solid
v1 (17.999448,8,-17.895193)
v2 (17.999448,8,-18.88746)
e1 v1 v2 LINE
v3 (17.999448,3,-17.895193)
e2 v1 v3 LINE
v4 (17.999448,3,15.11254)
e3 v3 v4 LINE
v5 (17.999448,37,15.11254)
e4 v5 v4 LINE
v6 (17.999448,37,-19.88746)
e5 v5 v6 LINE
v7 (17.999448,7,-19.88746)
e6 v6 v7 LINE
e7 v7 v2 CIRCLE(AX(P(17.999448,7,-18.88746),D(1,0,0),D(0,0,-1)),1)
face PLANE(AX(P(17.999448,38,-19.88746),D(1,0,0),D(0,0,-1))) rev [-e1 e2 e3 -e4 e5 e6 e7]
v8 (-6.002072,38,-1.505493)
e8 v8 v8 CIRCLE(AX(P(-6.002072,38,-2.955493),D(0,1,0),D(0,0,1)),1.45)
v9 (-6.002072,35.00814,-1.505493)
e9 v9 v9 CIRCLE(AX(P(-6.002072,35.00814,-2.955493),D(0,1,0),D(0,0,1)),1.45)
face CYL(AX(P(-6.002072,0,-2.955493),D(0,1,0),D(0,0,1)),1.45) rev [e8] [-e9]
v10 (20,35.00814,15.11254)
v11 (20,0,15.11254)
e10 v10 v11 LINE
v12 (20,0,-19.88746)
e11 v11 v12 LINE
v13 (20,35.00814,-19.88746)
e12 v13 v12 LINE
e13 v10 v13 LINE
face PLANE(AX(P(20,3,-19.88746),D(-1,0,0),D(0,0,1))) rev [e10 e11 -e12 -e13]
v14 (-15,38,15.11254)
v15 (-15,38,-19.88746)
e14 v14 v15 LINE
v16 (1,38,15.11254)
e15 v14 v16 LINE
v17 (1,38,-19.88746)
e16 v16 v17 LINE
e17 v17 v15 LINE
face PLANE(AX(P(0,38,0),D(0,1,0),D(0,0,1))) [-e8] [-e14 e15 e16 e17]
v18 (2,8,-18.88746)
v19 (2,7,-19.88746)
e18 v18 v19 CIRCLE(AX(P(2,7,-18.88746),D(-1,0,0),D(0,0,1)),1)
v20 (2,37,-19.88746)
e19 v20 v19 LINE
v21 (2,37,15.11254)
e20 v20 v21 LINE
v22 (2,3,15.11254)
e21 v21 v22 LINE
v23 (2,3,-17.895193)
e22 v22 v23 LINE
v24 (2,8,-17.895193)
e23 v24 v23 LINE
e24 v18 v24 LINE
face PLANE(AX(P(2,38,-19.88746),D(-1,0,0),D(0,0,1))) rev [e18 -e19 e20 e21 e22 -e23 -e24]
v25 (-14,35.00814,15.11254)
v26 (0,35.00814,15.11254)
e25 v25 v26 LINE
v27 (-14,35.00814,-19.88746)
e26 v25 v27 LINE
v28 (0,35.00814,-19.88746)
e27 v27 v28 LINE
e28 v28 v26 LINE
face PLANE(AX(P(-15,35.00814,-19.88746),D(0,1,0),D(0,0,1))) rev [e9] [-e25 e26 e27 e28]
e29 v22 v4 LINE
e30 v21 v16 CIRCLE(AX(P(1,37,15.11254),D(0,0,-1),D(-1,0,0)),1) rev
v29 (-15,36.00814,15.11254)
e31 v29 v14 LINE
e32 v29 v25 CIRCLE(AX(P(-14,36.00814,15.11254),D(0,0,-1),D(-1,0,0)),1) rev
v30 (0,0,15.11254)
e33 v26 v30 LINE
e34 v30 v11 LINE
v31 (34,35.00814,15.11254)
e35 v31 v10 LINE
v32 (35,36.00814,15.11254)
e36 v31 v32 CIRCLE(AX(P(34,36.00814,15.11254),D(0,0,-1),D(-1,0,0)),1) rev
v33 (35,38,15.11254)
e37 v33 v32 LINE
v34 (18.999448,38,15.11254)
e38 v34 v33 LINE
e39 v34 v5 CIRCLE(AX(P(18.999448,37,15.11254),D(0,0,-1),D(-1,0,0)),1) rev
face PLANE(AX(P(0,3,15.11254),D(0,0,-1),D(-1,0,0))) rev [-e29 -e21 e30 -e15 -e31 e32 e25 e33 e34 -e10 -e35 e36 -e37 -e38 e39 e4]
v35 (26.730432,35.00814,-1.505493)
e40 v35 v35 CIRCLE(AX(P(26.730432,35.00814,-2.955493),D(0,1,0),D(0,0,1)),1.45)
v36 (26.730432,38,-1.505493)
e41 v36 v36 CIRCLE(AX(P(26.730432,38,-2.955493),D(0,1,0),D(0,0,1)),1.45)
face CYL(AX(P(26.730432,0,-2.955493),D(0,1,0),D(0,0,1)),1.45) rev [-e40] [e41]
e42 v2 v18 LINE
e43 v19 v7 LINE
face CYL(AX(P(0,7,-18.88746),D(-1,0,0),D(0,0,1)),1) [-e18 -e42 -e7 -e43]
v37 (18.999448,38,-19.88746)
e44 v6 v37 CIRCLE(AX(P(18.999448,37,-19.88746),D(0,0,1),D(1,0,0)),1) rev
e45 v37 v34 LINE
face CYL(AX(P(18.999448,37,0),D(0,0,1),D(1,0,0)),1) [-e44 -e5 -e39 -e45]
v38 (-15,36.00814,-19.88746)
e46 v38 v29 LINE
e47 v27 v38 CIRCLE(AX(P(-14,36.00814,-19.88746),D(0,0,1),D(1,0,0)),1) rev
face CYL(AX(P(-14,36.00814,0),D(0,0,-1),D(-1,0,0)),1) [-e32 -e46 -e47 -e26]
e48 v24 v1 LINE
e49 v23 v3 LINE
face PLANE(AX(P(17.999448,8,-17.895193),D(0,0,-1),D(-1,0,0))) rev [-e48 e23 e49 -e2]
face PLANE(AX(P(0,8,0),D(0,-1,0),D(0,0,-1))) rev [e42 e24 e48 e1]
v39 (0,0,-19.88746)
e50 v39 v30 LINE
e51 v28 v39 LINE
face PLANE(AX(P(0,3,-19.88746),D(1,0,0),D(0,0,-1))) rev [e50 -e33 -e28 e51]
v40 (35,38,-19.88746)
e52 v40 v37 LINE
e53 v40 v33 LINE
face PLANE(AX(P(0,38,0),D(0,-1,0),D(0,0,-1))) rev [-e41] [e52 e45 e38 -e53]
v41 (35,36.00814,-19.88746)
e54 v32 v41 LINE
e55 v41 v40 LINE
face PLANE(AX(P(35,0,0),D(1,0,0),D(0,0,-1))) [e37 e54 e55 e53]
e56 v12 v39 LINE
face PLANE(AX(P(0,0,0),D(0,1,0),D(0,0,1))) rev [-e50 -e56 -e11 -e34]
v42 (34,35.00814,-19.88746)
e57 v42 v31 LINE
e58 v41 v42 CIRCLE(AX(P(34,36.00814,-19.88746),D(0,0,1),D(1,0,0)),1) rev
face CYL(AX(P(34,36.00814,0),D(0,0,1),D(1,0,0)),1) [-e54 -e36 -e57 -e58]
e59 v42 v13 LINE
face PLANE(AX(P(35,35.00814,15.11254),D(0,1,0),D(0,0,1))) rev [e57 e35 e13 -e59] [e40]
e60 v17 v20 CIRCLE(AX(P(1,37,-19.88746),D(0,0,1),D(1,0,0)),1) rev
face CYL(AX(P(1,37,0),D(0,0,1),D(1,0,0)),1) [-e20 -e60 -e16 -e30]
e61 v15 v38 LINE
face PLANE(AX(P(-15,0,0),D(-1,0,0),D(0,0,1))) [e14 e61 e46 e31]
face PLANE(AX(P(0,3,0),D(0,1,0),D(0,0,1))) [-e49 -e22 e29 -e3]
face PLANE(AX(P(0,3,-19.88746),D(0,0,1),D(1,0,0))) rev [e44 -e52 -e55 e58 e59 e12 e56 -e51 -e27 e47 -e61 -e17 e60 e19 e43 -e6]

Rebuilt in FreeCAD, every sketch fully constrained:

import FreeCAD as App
import Part
import Sketcher

V = App.Vector


def edges_at(feature, points):
    """Names of the edges that pass closest to the given points."""
    edges = feature.Shape.Edges
    near = lambda p: min(range(len(edges)), key=lambda i: edges[i].distToShape(Part.Vertex(*p))[0])
    return sorted({f"Edge{near(p) + 1}" for p in points})

doc = App.newDocument("Part")
params = doc.addObject("Spreadsheet::Sheet", "Params")
for row, (alias, value) in enumerate([
    ("sketch1_width", "20 mm"),
    ("sketch1_height", "35 mm"),
    ("pad1_length", "3 mm"),
    ("sketch2_width", "2 mm"),
    ("sketch2_height", "35 mm"),
    ("pad2_length", "35 mm"),
    ("sketch3_height", "35 mm"),
    ("pad3_length", "15 mm"),
    ("sketch4_height", "35 mm"),
    ("pad4_length", "15 mm"),
    ("pad5_length", "5 mm"),
    ("sketch6_diameter", "2.9 mm"),
    ("fillet_radius", "1 mm"),
    ("fillet2_radius", "1 mm"),
], start=1):
    params.set(f"A{row}", alias)
    params.set(f"B{row}", "=" + value)
    params.setAlias(f"B{row}", alias)

body = doc.addObject("PartDesign::Body", "Body")

sketch1 = doc.addObject("Sketcher::SketchObject", "Sketch")
body.addObject(sketch1)
sketch1.AttachmentSupport = (doc.XZ_Plane, [""])
sketch1.MapMode = "FlatFace"
sketch1.addGeometry([
    Part.LineSegment(V(0, -20, 0), V(0, 15, 0)),
    Part.LineSegment(V(0, 15, 0), V(20, 15, 0)),
    Part.LineSegment(V(20, 15, 0), V(20, -20, 0)),
    Part.LineSegment(V(20, -20, 0), V(0, -20, 0)),
], False)
sketch1.addConstraint([
    Sketcher.Constraint("Coincident", 0, 2, 1, 1),
    Sketcher.Constraint("Coincident", 1, 2, 2, 1),
    Sketcher.Constraint("Coincident", 2, 2, 3, 1),
    Sketcher.Constraint("Coincident", 3, 2, 0, 1),
    Sketcher.Constraint("Vertical", 0),
    Sketcher.Constraint("Horizontal", 1),
    Sketcher.Constraint("Vertical", 2),
    Sketcher.Constraint("Horizontal", 3),
    Sketcher.Constraint("PointOnObject", 0, 2, -2),
    Sketcher.Constraint("DistanceX", 1, 1, 1, 2, 20.0),
    Sketcher.Constraint("DistanceY", 0, 1, 0, 2, 35.0),
    Sketcher.Constraint("DistanceY", -1, 1, 0, 2, 15.11254),
])
sketch1.setExpression("Constraints[9]", "Params.sketch1_width")
sketch1.setExpression("Constraints[10]", "Params.sketch1_height")
pad1 = doc.addObject("PartDesign::Pad", "Pad")
body.addObject(pad1)
pad1.Profile = sketch1
pad1.setExpression("Length", "Params.pad1_length")
pad1.Reversed = True

sketch2 = doc.addObject("Sketcher::SketchObject", "Sketch001")
body.addObject(sketch2)
sketch2.AttachmentSupport = (doc.XZ_Plane, [""])
sketch2.MapMode = "FlatFace"
sketch2.AttachmentOffset = App.Placement(V(0, 0, -3), App.Rotation())
sketch2.addGeometry([
    Part.LineSegment(V(0, -19.9, 0), V(0, 15.1, 0)),
    Part.LineSegment(V(0, 15.1, 0), V(2, 15.1, 0)),
    Part.LineSegment(V(2, 15.1, 0), V(2, -19.9, 0)),
    Part.LineSegment(V(2, -19.9, 0), V(0, -19.9, 0)),
    Part.LineSegment(V(18, -19.9, 0), V(18, 15.1, 0)),
    Part.LineSegment(V(18, 15.1, 0), V(20, 15.1, 0)),
    Part.LineSegment(V(20, 15.1, 0), V(20, -19.9, 0)),
    Part.LineSegment(V(20, -19.9, 0), V(18, -19.9, 0)),
], False)
sketch2.addConstraint([
    Sketcher.Constraint("Coincident", 0, 2, 1, 1),
    Sketcher.Constraint("Coincident", 1, 2, 2, 1),
    Sketcher.Constraint("Coincident", 2, 2, 3, 1),
    Sketcher.Constraint("Coincident", 3, 2, 0, 1),
    Sketcher.Constraint("Coincident", 4, 2, 5, 1),
    Sketcher.Constraint("Coincident", 5, 2, 6, 1),
    Sketcher.Constraint("Coincident", 6, 2, 7, 1),
    Sketcher.Constraint("Coincident", 7, 2, 4, 1),
    Sketcher.Constraint("Vertical", 0),
    Sketcher.Constraint("Horizontal", 1),
    Sketcher.Constraint("Vertical", 2),
    Sketcher.Constraint("Horizontal", 3),
    Sketcher.Constraint("Vertical", 4),
    Sketcher.Constraint("Horizontal", 5),
    Sketcher.Constraint("Vertical", 6),
    Sketcher.Constraint("Horizontal", 7),
    Sketcher.Constraint("PointOnObject", 0, 2, -2),
    Sketcher.Constraint("Horizontal", 1, 2, 4, 2),
    Sketcher.Constraint("Horizontal", 3, 2, 6, 2),
    Sketcher.Constraint("DistanceX", 1, 1, 1, 2, 2.0),
    Sketcher.Constraint("DistanceY", 0, 1, 0, 2, 35.0),
    Sketcher.Constraint("DistanceX", -1, 1, 5, 2, 20.0),
    Sketcher.Constraint("DistanceX", 5, 1, 5, 2, 2.000552),
    Sketcher.Constraint("DistanceY", -1, 1, 0, 2, 15.11254),
])
sketch2.setExpression("Constraints[19]", "Params.sketch2_width")
sketch2.setExpression("Constraints[20]", "Params.sketch2_height")
pad2 = doc.addObject("PartDesign::Pad", "Pad001")
body.addObject(pad2)
pad2.Profile = sketch2
pad2.setExpression("Length", "Params.pad2_length")
pad2.Reversed = True

sketch3 = doc.addObject("Sketcher::SketchObject", "Sketch002")
body.addObject(sketch3)
sketch3.AttachmentSupport = (doc.YZ_Plane, [""])
sketch3.MapMode = "FlatFace"
sketch3.AttachmentOffset = App.Placement(V(0, 0, 20), App.Rotation())
sketch3.addGeometry([
    Part.LineSegment(V(38, 15.1, 0), V(35, 15.1, 0)),
    Part.LineSegment(V(35, 15.1, 0), V(35, -19.9, 0)),
    Part.LineSegment(V(35, -19.9, 0), V(38, -19.9, 0)),
    Part.LineSegment(V(38, -19.9, 0), V(38, 15.1, 0)),
], False)
sketch3.addConstraint([
    Sketcher.Constraint("Coincident", 0, 2, 1, 1),
    Sketcher.Constraint("Coincident", 1, 2, 2, 1),
    Sketcher.Constraint("Coincident", 2, 2, 3, 1),
    Sketcher.Constraint("Coincident", 3, 2, 0, 1),
    Sketcher.Constraint("Horizontal", 0),
    Sketcher.Constraint("Vertical", 1),
    Sketcher.Constraint("Horizontal", 2),
    Sketcher.Constraint("Vertical", 3),
    Sketcher.Constraint("DistanceY", 1, 2, 1, 1, 35.0),
    Sketcher.Constraint("DistanceX", -1, 1, 2, 2, 38.0),
    Sketcher.Constraint("DistanceX", 0, 2, 0, 1, 2.99186),
    Sketcher.Constraint("DistanceY", -1, 1, 0, 2, 15.11254),
])
sketch3.setExpression("Constraints[8]", "Params.sketch3_height")
pad3 = doc.addObject("PartDesign::Pad", "Pad002")
body.addObject(pad3)
pad3.Profile = sketch3
pad3.setExpression("Length", "Params.pad3_length")

sketch4 = doc.addObject("Sketcher::SketchObject", "Sketch003")
body.addObject(sketch4)
sketch4.AttachmentSupport = (doc.YZ_Plane, [""])
sketch4.MapMode = "FlatFace"
sketch4.addGeometry([
    Part.LineSegment(V(38, -19.9, 0), V(35, -19.9, 0)),
    Part.LineSegment(V(35, -19.9, 0), V(35, 15.1, 0)),
    Part.LineSegment(V(35, 15.1, 0), V(38, 15.1, 0)),
    Part.LineSegment(V(38, 15.1, 0), V(38, -19.9, 0)),
], False)
sketch4.addConstraint([
    Sketcher.Constraint("Coincident", 0, 2, 1, 1),
    Sketcher.Constraint("Coincident", 1, 2, 2, 1),
    Sketcher.Constraint("Coincident", 2, 2, 3, 1),
    Sketcher.Constraint("Coincident", 3, 2, 0, 1),
    Sketcher.Constraint("Horizontal", 0),
    Sketcher.Constraint("Vertical", 1),
    Sketcher.Constraint("Horizontal", 2),
    Sketcher.Constraint("Vertical", 3),
    Sketcher.Constraint("DistanceY", 1, 1, 1, 2, 35.0),
    Sketcher.Constraint("DistanceX", -1, 1, 2, 2, 38.0),
    Sketcher.Constraint("DistanceX", 0, 2, 0, 1, 2.99186),
    Sketcher.Constraint("DistanceY", 0, 2, -1, 1, 19.88746),
])
sketch4.setExpression("Constraints[8]", "Params.sketch4_height")
pad4 = doc.addObject("PartDesign::Pad", "Pad003")
body.addObject(pad4)
pad4.Profile = sketch4
pad4.setExpression("Length", "Params.pad4_length")
pad4.Reversed = True

sketch5 = doc.addObject("Sketcher::SketchObject", "Sketch004")
body.addObject(sketch5)
sketch5.AttachmentSupport = (doc.XZ_Plane, [""])
sketch5.MapMode = "FlatFace"
sketch5.AttachmentOffset = App.Placement(V(0, 0, -3), App.Rotation())
sketch5.addGeometry([
    Part.LineSegment(V(2, -19.9, 0), V(2, -17.9, 0)),
    Part.LineSegment(V(2, -17.9, 0), V(18, -17.9, 0)),
    Part.LineSegment(V(18, -17.9, 0), V(18, -19.9, 0)),
    Part.LineSegment(V(18, -19.9, 0), V(2, -19.9, 0)),
], False)
sketch5.addConstraint([
    Sketcher.Constraint("Coincident", 0, 2, 1, 1),
    Sketcher.Constraint("Coincident", 1, 2, 2, 1),
    Sketcher.Constraint("Coincident", 2, 2, 3, 1),
    Sketcher.Constraint("Coincident", 3, 2, 0, 1),
    Sketcher.Constraint("Vertical", 0),
    Sketcher.Constraint("Horizontal", 1),
    Sketcher.Constraint("Vertical", 2),
    Sketcher.Constraint("Horizontal", 3),
    Sketcher.Constraint("DistanceX", -1, 1, 0, 2, 2.0),
    Sketcher.Constraint("DistanceX", 1, 1, 1, 2, 15.999448),
    Sketcher.Constraint("DistanceY", 0, 1, 0, 2, 1.992267),
    Sketcher.Constraint("DistanceY", 2, 2, -1, 1, 19.88746),
])
pad5 = doc.addObject("PartDesign::Pad", "Pad004")
body.addObject(pad5)
pad5.Profile = sketch5
pad5.setExpression("Length", "Params.pad5_length")
pad5.Reversed = True

sketch6 = doc.addObject("Sketcher::SketchObject", "Sketch005")
body.addObject(sketch6)
sketch6.AttachmentSupport = (doc.XZ_Plane, [""])
sketch6.MapMode = "FlatFace"
sketch6.AttachmentOffset = App.Placement(V(0, 0, -38), App.Rotation())
sketch6.addGeometry([
    Part.Circle(V(-6, -3, 0), V(0, 0, 1), 1.4),
    Part.Circle(V(26.7, -3, 0), V(0, 0, 1), 1.4),
], False)
sketch6.addConstraint([
    Sketcher.Constraint("Equal", 0, 1),
    Sketcher.Constraint("Horizontal", 0, 3, 1, 3),
    Sketcher.Constraint("Diameter", 0, 2.9),
    Sketcher.Constraint("DistanceX", 0, 3, -1, 1, 6.002072),
    Sketcher.Constraint("DistanceY", 0, 3, -1, 1, 2.955493),
    Sketcher.Constraint("DistanceX", -1, 1, 1, 3, 26.730432),
])
sketch6.setExpression("Constraints[2]", "Params.sketch6_diameter")
pocket1 = doc.addObject("PartDesign::Pocket", "Pocket")
body.addObject(pocket1)
pocket1.Profile = sketch6
pocket1.Type = "ThroughAll"
pocket1.Reversed = True
doc.recompute()

fillet = doc.addObject("PartDesign::Fillet", "Fillet")
body.addObject(fillet)
fillet.Base = (pocket1, edges_at(pocket1, [
    (2, 38, -2.387),
    (17.999, 38, -2.387),
    (35, 35.008, -2.387),
    (-15, 35.008, -2.387),
]))
fillet.setExpression("Radius", "Params.fillet_radius")
doc.recompute()

fillet2 = doc.addObject("PartDesign::Fillet", "Fillet001")
body.addObject(fillet2)
fillet2.Base = (fillet, edges_at(fillet, [(10, 8, -19.887)]))
fillet2.setExpression("Radius", "Params.fillet2_radius")

doc.recompute()
